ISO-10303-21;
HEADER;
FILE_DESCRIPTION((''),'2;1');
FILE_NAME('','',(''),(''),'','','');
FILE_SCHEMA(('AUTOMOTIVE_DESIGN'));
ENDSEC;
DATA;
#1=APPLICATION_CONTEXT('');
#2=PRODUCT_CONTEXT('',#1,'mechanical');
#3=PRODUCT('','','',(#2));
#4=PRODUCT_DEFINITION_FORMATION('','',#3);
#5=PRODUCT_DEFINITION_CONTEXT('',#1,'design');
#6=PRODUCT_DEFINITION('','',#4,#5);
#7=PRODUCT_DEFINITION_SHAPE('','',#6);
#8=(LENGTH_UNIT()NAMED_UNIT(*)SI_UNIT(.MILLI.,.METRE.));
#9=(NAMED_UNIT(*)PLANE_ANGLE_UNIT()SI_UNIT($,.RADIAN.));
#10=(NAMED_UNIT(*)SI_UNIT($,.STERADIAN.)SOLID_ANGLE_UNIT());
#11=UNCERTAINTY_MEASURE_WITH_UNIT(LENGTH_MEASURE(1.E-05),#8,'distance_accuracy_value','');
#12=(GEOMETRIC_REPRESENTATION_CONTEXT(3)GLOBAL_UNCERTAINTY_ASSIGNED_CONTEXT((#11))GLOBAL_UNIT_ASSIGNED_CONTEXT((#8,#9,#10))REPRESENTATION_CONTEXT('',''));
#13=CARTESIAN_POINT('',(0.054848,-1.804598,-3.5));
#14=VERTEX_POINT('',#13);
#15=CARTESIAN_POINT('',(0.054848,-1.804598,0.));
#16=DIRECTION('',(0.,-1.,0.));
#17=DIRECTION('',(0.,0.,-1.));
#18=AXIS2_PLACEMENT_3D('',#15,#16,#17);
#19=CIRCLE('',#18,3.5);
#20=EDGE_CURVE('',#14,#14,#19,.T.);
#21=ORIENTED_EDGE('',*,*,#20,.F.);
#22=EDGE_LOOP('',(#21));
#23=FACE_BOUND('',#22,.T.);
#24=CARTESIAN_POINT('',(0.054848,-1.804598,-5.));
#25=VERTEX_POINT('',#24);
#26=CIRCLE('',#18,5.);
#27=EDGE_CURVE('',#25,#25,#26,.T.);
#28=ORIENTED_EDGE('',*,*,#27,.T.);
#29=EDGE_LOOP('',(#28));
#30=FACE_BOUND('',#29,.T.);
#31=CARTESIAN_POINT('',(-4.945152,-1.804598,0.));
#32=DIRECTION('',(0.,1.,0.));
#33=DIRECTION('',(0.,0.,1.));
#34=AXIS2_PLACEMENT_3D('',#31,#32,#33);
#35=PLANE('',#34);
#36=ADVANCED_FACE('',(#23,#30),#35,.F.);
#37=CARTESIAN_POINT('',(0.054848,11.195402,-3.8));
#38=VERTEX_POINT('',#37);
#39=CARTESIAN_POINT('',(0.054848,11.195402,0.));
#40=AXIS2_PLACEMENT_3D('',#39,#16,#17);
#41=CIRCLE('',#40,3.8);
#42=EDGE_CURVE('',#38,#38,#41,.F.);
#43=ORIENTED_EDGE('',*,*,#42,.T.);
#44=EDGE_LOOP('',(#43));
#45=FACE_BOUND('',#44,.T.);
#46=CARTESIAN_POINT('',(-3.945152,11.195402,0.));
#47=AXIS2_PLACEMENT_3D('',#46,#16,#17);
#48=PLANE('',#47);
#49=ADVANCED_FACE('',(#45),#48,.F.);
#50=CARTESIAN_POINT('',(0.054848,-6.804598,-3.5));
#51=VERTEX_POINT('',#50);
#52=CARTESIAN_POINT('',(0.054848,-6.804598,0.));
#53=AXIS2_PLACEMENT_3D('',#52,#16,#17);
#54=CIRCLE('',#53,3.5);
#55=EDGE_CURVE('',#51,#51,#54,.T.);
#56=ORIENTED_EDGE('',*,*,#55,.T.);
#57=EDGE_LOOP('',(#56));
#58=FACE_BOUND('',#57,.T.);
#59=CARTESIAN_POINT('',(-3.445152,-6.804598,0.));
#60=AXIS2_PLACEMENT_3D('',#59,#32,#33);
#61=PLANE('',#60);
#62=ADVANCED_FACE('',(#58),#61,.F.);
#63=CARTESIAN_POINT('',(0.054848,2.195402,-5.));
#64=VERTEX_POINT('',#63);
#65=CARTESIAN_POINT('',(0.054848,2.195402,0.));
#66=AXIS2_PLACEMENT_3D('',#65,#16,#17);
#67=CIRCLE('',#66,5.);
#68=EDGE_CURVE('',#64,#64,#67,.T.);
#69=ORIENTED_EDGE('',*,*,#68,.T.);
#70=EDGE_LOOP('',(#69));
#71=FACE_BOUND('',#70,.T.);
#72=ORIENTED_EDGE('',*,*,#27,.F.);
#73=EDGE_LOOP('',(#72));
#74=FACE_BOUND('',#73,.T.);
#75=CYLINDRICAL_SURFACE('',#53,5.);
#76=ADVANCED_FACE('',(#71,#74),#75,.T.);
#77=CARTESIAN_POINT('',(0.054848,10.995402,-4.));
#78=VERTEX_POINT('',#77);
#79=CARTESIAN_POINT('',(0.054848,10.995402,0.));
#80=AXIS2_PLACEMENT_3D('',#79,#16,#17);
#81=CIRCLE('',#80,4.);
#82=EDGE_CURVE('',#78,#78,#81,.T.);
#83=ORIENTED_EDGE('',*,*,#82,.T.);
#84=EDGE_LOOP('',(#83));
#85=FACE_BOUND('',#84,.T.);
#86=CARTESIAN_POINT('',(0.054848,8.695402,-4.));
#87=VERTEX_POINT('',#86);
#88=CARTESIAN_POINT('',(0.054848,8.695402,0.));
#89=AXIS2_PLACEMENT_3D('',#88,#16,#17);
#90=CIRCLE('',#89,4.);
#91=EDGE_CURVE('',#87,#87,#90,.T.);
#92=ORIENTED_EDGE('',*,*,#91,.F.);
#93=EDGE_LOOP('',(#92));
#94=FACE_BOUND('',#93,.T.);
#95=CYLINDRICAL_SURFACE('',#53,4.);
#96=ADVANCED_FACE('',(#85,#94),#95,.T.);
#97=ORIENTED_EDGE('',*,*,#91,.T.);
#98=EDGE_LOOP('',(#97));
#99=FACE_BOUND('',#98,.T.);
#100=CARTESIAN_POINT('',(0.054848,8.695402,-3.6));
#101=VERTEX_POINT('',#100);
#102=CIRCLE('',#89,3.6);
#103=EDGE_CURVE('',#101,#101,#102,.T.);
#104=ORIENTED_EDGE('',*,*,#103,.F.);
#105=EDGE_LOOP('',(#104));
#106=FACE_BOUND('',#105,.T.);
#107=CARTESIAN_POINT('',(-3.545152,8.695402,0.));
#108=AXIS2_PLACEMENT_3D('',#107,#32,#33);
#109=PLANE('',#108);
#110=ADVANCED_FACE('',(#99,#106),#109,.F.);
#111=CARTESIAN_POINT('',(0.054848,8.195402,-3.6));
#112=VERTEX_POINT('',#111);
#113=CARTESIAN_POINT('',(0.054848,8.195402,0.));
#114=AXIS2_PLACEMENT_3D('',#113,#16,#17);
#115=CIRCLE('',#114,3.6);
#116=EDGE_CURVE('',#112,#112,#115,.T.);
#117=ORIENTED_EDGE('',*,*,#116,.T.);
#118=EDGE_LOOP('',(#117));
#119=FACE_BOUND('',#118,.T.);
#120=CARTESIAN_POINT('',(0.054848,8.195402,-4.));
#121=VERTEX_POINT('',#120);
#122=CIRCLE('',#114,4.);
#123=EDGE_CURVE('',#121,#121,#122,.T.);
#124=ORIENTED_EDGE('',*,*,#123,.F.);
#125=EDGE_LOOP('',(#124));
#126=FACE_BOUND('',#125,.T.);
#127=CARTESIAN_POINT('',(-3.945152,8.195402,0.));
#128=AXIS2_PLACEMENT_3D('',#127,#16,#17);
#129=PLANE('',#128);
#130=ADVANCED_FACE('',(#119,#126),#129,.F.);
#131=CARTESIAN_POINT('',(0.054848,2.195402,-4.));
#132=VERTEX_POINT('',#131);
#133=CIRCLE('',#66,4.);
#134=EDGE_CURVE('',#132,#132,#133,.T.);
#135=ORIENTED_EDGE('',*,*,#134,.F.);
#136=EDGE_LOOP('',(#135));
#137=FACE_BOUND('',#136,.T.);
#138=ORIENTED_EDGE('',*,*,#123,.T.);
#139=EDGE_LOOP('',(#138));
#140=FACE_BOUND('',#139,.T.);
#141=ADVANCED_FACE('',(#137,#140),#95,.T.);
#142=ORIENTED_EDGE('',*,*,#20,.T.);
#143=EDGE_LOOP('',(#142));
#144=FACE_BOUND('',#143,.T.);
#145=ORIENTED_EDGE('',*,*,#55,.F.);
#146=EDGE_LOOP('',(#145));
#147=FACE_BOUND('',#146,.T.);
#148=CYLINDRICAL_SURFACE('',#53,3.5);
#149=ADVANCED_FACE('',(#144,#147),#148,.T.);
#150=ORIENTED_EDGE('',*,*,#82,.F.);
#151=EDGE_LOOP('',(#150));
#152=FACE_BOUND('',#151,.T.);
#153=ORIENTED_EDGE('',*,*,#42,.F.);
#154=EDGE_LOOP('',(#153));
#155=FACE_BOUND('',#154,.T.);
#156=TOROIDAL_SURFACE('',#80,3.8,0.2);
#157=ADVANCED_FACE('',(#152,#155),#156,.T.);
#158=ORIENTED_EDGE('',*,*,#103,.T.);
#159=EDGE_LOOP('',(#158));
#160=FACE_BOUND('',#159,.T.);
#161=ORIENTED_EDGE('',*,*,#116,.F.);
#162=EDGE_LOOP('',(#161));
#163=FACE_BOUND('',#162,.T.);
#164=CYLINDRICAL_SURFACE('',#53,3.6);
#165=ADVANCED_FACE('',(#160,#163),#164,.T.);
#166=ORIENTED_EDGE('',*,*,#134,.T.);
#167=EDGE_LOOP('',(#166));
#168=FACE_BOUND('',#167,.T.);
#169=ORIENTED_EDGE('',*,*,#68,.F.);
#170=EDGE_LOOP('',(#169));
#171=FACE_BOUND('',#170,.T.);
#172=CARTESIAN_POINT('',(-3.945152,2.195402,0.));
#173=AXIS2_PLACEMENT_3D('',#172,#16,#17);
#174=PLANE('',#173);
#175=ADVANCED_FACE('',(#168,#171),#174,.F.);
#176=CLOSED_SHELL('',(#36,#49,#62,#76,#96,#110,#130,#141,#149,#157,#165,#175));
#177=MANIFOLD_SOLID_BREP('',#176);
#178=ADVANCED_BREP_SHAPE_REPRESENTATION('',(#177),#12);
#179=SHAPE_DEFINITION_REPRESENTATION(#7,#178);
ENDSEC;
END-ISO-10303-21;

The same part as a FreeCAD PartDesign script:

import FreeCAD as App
import Part
import Sketcher

V = App.Vector


def edges_at(feature, points):
    """Names of the edges that pass closest to the given points."""
    edges = feature.Shape.Edges
    near = lambda p: min(range(len(edges)), key=lambda i: edges[i].distToShape(Part.Vertex(*p))[0])
    return sorted({f"Edge{near(p) + 1}" for p in points})


def add_polygon(sketch, points):
    """Adds a closed chain of lines whose ends are joined by coincident constraints."""
    first, n = sketch.GeometryCount, len(points)
    for a, b in zip(points, points[1:] + points[:1]):
        sketch.addGeometry(Part.LineSegment(App.Vector(*a, 0), App.Vector(*b, 0)), False)
    for i in range(n):
        sketch.addConstraint(Sketcher.Constraint("Coincident", first + i, 2, first + (i + 1) % n, 1))

doc = App.newDocument("Part")
body = doc.addObject("PartDesign::Body", "Body")

# Sketch on XY plane
sketch1 = doc.addObject("Sketcher::SketchObject", "Sketch")
body.addObject(sketch1)
sketch1.AttachmentSupport = (doc.XY_Plane, [""])
sketch1.MapMode = "FlatFace"
add_polygon(sketch1, [(-3.945152, 11.195402), (-3.945152, 8.695402), (-3.545152, 8.695402), (-3.545152, 8.195402), (-3.945152, 8.195402), (-3.945152, 2.195402), (-4.945152, 2.195402), (-4.945152, -1.804598), (-3.445152, -1.804598), (-3.445152, -6.804598), (0.054848, -6.804598), (0.054848, 11.195402)])  # lines 0-11
sketch1.addGeometry(Part.LineSegment(V(0.054848, -6.804598, 0), V(0.054848, 11.195402, 0)), True)  # axis
sketch1.addConstraint([
    Sketcher.Constraint("Vertical", 0),
    Sketcher.Constraint("Horizontal", 1),
    Sketcher.Constraint("Vertical", 2),
    Sketcher.Constraint("Horizontal", 3),
    Sketcher.Constraint("Vertical", 4),
    Sketcher.Constraint("Horizontal", 5),
    Sketcher.Constraint("Vertical", 6),
    Sketcher.Constraint("Horizontal", 7),
    Sketcher.Constraint("Vertical", 8),
    Sketcher.Constraint("Horizontal", 9),
    Sketcher.Constraint("Vertical", 10),
    Sketcher.Constraint("Horizontal", 11),
    Sketcher.Constraint("Vertical", 12),
    Sketcher.Constraint("Coincident", 12, 1, 9, 2),
    Sketcher.Constraint("Horizontal", 11, 2, 12, 2),
    Sketcher.Constraint("Vertical", 0, 2, 3, 2),
    Sketcher.Constraint("Equal", 11, 6),
    Sketcher.Constraint("DistanceX", 5, 2, 5, 1, 1.0),
    Sketcher.Constraint("DistanceX", 11, 2, 11, 1, 4.0),
    Sketcher.Constraint("DistanceY", 4, 2, 4, 1, 6.0),
    Sketcher.Constraint("DistanceY", 8, 2, 8, 1, 5.0),
    Sketcher.Constraint("DistanceY", 10, 1, 10, 2, 18.0),
    Sketcher.Constraint("DistanceX", 1, 1, 1, 2, 0.4),
    Sketcher.Constraint("DistanceX", 7, 1, 7, 2, 1.5),
    Sketcher.Constraint("DistanceY", 0, 2, 0, 1, 2.5),
    Sketcher.Constraint("DistanceX", 0, 2, -1, 1, 3.945152),
    Sketcher.Constraint("DistanceY", -1, 1, 0, 2, 8.695402),
])
revolution = doc.addObject("PartDesign::Revolution", "Revolution")
body.addObject(revolution)
revolution.Profile = sketch1
revolution.ReferenceAxis = (sketch1, ["Axis0"])
revolution.Angle = 360
doc.recompute()

fillet = doc.addObject("PartDesign::Fillet", "Fillet")
body.addObject(fillet)
fillet.Base = (revolution, edges_at(revolution, [(4.055, 11.195, 0)]))
fillet.Radius = 0.2

doc.recompute()
